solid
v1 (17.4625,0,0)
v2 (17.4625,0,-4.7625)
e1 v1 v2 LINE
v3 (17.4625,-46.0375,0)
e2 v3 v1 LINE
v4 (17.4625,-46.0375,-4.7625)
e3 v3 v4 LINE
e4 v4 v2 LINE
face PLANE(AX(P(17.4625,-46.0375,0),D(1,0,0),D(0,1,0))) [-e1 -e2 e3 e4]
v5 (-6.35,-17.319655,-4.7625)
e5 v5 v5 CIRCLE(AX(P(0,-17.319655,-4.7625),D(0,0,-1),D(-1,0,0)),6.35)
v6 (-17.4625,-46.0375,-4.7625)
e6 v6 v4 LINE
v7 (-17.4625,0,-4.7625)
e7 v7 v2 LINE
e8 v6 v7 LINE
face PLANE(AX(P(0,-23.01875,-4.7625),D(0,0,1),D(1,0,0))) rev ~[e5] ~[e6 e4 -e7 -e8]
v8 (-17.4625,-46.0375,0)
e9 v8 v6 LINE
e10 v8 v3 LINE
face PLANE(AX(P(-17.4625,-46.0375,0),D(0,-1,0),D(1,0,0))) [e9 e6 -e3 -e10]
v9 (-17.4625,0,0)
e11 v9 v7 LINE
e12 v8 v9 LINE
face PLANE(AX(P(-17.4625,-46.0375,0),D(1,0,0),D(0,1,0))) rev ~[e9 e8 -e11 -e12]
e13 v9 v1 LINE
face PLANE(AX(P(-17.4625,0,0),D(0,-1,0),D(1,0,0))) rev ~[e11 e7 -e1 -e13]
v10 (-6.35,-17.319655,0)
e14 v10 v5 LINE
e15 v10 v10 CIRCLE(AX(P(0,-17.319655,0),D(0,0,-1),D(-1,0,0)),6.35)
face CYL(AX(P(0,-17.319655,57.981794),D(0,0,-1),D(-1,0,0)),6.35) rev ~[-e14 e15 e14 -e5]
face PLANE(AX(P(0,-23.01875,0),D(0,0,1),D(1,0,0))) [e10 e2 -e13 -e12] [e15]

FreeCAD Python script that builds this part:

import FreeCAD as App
import Part
import Sketcher
from FreeCAD import Vector
Q = App.Units.Quantity


def add_polygon(sketch, points):
    """Adds a closed chain of lines whose ends are joined by coincident constraints."""
    first, n = sketch.GeometryCount, len(points)
    for a, b in zip(points, points[1:] + points[:1]):
        sketch.addGeometry(Part.LineSegment(App.Vector(*a, 0), App.Vector(*b, 0)), False)
    for i in range(n):
        sketch.addConstraint(Sketcher.Constraint("Coincident", first + i, 2, first + (i + 1) % n, 1))

doc = App.newDocument("Part")
body = doc.addObject("PartDesign::Body", "Body")

# Sketch on XY plane
sketch1 = body.newObject("Sketcher::SketchObject", "Sketch")
sketch1.AttachmentSupport = (doc.getObject("XY_Plane"), [""])
sketch1.MapMode = "FlatFace"
add_polygon(sketch1, [(-17.4625, 0), (-17.4625, -46.0375), (17.4625, -46.0375), (17.4625, 0)])  # lines 0-3
sketch1.addConstraint([
    Sketcher.Constraint("Vertical", 0),
    Sketcher.Constraint("Horizontal", 1),
    Sketcher.Constraint("Vertical", 2),
    Sketcher.Constraint("Horizontal", 3),
    Sketcher.Constraint("Symmetric", 2, 2, 3, 2, -1, 1),
    Sketcher.Constraint("DistanceX", 1, 1, 1, 2, Q("1.375 in")),
    Sketcher.Constraint("DistanceY", 0, 2, 0, 1, Q("1.8125 in")),
])
pad1 = body.newObject("PartDesign::Pad", "Pad")
pad1.Profile = sketch1
pad1.Length = Q("0.1875 in")
pad1.Reversed = True

# Sketch on XY plane
sketch2 = body.newObject("Sketcher::SketchObject", "Sketch001")
sketch2.AttachmentSupport = (doc.getObject("XY_Plane"), [""])
sketch2.MapMode = "FlatFace"
sketch2.addGeometry(Part.Circle(Vector(0, -17.319655, 0), Vector(0, 0, 1), 6.35), False)
sketch2.addConstraint([
    Sketcher.Constraint("PointOnObject", 0, 3, -2),
    Sketcher.Constraint("Diameter", 0, Q("0.5 in")),
    Sketcher.Constraint("DistanceY", 0, 3, -1, 1, Q("17.319655 mm")),
])
doc.recompute()
hole = body.newObject("PartDesign::Hole", "Hole")
hole.Profile = sketch2
hole.ThreadType = "None"
hole.Diameter = Q("0.5 in")
hole.DepthType = "ThroughAll"

doc.recompute()
